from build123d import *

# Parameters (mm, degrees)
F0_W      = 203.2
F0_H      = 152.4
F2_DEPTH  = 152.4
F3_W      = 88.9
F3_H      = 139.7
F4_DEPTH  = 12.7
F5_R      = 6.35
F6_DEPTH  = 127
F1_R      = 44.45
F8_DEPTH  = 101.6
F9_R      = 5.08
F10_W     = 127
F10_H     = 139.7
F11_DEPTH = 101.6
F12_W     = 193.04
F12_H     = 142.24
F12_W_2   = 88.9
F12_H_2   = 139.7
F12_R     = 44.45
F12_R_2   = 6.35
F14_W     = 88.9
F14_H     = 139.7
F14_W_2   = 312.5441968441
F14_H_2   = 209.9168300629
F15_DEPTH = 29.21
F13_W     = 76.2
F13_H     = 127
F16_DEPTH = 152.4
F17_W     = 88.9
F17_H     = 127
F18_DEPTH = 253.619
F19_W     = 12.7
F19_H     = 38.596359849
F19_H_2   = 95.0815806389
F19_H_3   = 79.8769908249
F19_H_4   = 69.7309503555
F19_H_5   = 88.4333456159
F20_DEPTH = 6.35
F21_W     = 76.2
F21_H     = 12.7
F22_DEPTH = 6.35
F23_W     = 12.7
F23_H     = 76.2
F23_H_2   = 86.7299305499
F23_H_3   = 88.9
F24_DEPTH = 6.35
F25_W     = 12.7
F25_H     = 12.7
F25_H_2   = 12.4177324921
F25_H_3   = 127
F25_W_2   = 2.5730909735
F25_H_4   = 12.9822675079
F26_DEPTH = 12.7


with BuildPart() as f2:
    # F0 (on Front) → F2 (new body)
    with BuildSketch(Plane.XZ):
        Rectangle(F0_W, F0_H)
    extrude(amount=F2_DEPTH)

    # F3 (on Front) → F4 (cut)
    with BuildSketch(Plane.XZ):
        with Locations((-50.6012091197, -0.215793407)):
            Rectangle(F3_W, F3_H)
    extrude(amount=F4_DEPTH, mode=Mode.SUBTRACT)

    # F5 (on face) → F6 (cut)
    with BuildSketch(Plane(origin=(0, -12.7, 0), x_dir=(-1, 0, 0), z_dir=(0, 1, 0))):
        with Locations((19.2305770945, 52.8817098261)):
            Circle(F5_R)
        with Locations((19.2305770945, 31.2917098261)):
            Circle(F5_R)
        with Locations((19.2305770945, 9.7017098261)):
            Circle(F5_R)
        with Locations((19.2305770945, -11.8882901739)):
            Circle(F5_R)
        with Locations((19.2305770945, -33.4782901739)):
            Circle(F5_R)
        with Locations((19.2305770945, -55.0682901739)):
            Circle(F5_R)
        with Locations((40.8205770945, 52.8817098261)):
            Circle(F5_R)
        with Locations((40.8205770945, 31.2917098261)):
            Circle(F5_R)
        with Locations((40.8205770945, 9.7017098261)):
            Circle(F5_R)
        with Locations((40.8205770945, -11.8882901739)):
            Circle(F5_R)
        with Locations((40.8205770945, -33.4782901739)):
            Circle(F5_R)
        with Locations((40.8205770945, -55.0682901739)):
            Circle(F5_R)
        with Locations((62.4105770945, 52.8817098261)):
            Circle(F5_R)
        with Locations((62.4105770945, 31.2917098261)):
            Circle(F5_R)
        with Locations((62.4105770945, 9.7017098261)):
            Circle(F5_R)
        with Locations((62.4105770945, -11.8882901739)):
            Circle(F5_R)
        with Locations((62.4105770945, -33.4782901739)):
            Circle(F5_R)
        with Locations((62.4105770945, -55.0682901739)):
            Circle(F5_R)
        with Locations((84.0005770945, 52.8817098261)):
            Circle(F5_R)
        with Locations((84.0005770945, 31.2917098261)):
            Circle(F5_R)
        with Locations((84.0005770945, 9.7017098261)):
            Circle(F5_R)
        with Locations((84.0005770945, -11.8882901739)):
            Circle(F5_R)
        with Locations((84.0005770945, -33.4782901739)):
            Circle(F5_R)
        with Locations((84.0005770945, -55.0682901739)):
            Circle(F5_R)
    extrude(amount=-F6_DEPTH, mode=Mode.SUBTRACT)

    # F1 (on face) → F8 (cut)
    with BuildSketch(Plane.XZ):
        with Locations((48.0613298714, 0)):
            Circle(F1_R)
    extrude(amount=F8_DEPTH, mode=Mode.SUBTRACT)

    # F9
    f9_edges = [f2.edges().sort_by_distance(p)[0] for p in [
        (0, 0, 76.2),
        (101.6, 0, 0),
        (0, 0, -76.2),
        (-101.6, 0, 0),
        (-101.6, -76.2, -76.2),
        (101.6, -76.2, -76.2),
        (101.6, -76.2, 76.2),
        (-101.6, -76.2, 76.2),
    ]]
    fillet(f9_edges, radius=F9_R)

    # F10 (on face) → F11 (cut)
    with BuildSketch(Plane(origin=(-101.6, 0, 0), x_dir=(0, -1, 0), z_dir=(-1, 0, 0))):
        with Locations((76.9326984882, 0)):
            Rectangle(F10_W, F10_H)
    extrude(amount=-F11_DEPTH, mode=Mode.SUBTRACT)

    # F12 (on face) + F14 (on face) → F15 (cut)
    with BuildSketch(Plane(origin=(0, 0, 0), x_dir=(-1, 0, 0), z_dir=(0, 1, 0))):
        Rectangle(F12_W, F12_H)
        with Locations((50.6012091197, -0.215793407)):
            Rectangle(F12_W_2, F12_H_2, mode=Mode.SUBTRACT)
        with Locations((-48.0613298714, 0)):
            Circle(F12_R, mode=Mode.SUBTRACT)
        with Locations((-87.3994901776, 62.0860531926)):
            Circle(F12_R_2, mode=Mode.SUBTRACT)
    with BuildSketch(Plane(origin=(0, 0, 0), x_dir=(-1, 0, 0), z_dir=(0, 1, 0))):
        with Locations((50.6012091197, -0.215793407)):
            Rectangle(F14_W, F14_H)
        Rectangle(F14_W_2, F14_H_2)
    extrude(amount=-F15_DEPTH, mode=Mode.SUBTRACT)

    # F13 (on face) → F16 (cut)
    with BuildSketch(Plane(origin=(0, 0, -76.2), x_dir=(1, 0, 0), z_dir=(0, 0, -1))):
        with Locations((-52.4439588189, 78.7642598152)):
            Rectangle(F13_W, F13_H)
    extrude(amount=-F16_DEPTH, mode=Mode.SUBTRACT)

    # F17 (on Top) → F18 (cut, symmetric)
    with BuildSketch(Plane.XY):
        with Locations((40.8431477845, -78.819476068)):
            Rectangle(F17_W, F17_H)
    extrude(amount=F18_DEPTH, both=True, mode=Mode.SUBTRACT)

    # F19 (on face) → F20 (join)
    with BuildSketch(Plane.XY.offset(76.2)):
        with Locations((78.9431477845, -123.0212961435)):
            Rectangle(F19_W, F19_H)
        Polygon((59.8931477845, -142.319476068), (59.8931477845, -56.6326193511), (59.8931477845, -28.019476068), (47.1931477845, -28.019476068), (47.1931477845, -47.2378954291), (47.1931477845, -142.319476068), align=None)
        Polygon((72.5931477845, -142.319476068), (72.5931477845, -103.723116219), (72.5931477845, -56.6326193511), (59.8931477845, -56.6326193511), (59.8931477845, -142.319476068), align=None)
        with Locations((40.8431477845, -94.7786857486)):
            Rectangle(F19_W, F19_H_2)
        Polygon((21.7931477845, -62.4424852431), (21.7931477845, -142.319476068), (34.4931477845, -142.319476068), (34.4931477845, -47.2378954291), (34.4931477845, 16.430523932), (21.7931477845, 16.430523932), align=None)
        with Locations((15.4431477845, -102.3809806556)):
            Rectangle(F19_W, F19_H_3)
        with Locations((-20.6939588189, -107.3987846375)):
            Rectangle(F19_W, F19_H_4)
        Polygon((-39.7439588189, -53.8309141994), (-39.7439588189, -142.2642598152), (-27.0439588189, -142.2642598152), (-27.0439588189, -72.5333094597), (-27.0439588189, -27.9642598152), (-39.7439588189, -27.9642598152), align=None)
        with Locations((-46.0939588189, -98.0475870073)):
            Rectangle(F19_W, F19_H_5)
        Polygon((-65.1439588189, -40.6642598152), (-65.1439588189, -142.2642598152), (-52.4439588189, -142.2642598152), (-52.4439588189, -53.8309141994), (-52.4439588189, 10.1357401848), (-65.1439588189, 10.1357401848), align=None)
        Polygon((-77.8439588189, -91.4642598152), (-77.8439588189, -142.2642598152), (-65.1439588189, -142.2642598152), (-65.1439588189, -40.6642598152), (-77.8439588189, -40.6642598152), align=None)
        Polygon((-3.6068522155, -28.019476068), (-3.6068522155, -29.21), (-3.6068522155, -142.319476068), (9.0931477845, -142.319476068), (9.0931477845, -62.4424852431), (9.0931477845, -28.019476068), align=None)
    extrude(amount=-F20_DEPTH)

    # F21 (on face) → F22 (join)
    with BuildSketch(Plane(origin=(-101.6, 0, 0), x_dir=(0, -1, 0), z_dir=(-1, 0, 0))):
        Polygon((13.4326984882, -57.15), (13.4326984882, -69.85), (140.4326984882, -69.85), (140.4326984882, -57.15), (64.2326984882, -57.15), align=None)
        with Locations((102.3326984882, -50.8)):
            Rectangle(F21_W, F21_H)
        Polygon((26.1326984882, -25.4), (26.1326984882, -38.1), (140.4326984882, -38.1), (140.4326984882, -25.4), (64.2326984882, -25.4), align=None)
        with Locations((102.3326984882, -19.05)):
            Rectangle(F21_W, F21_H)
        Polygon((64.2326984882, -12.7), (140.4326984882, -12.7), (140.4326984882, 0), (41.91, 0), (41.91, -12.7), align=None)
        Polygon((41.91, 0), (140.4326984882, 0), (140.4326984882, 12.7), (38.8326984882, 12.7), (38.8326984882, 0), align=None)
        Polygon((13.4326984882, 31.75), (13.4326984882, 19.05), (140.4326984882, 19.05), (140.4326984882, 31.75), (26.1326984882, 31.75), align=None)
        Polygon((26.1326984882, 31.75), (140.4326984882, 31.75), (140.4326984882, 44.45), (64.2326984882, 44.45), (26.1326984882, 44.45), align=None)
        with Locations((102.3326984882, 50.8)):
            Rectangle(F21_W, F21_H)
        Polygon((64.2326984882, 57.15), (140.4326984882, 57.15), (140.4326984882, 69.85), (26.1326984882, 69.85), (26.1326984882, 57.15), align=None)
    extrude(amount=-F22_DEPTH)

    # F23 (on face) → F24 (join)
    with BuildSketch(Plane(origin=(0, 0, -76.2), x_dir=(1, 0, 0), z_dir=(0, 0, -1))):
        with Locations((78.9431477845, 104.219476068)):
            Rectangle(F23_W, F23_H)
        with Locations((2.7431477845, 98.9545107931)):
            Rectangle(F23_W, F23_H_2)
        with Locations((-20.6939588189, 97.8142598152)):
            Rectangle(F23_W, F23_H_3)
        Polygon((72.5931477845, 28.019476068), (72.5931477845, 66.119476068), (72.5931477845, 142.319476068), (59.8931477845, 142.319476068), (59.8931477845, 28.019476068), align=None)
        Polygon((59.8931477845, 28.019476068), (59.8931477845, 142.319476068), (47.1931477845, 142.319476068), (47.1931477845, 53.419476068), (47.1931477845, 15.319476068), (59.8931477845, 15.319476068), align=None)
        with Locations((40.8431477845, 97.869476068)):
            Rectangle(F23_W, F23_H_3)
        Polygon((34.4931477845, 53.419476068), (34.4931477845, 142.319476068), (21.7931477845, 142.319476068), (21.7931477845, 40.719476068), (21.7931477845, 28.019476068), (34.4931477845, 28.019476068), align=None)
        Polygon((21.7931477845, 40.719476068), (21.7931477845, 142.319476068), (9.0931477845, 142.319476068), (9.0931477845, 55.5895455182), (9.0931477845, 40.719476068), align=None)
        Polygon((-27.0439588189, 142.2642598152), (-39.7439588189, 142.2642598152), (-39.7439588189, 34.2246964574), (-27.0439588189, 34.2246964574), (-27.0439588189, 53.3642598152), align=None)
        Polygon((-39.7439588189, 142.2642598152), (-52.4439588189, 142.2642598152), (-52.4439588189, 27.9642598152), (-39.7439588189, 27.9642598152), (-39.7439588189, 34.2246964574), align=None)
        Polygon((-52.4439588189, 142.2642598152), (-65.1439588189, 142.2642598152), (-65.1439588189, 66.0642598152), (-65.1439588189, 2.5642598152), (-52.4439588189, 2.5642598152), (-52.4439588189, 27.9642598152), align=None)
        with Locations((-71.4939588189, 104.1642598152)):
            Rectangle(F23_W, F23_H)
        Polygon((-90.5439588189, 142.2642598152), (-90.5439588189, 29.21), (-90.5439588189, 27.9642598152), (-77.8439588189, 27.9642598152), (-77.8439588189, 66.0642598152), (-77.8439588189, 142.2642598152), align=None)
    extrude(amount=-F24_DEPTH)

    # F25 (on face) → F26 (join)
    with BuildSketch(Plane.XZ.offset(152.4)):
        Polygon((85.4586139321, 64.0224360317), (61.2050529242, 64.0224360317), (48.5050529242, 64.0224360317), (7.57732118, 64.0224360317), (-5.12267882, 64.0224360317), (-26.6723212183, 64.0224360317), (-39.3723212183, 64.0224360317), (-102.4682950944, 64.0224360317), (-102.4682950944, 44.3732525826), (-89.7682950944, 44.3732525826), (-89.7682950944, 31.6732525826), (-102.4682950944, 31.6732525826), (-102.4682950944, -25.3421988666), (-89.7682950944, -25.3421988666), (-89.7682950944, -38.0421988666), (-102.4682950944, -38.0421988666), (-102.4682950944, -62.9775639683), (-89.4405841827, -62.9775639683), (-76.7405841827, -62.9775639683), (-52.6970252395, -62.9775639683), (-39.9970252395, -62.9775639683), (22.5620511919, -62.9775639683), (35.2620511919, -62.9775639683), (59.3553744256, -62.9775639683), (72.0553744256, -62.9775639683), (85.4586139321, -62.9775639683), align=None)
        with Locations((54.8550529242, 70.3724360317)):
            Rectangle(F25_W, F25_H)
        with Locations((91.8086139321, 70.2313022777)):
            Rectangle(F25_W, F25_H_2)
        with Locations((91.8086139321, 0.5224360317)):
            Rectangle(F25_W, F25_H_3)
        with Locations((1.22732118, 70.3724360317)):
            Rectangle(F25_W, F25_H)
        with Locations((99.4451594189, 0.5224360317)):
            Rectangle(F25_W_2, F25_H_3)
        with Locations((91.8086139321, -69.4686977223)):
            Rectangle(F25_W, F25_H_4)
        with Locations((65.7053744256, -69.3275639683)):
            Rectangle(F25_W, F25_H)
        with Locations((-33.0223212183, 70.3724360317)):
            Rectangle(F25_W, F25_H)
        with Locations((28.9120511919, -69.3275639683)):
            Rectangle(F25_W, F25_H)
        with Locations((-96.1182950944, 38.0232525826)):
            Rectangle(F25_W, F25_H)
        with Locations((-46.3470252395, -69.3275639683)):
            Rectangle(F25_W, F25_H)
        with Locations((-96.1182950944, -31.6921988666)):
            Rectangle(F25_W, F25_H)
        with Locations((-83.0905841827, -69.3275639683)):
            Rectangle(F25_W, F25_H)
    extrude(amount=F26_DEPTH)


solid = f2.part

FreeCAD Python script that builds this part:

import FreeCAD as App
import Part
import Sketcher
from FreeCAD import Vector
Q = App.Units.Quantity


def edges_at(feature, points):
    """Names of the edges that pass closest to the given points."""
    edges = feature.Shape.Edges
    near = lambda p: min(range(len(edges)), key=lambda i: edges[i].distToShape(Part.Vertex(*p))[0])
    return sorted({f"Edge{near(p) + 1}" for p in points})


def add_polygon(sketch, points):
    """Adds a closed chain of lines whose ends are joined by coincident constraints."""
    first, n = sketch.GeometryCount, len(points)
    for a, b in zip(points, points[1:] + points[:1]):
        sketch.addGeometry(Part.LineSegment(App.Vector(*a, 0), App.Vector(*b, 0)), False)
    for i in range(n):
        sketch.addConstraint(Sketcher.Constraint("Coincident", first + i, 2, first + (i + 1) % n, 1))

doc = App.newDocument("Part")
body = doc.addObject("PartDesign::Body", "Body")

# Sketch on XZ plane
sketch1 = doc.addObject("Sketcher::SketchObject", "Sketch")
body.addObject(sketch1)
sketch1.AttachmentSupport = (doc.XZ_Plane, [""])
sketch1.MapMode = "FlatFace"
add_polygon(sketch1, [(-102, 76), (-102, -76), (102, -76), (102, 76)])  # lines 0-3
sketch1.addConstraint(Sketcher.Constraint("Vertical", 0))
sketch1.addConstraint(Sketcher.Constraint("Horizontal", 1))
sketch1.addConstraint(Sketcher.Constraint("Vertical", 2))
sketch1.addConstraint(Sketcher.Constraint("Horizontal", 3))
sketch1.addConstraint(Sketcher.Constraint("Symmetric", 0, 2, 2, 2, -1, 1))
sketch1.addConstraint(Sketcher.Constraint("DistanceX", 1, 1, 1, 2, Q("8 in")))
sketch1.addConstraint(Sketcher.Constraint("DistanceY", 0, 2, 0, 1, Q("6 in")))
pad1 = doc.addObject("PartDesign::Pad", "Pad")
body.addObject(pad1)
pad1.Profile = sketch1
pad1.Length = Q("6 in")

# Sketch on XZ plane
sketch2 = doc.addObject("Sketcher::SketchObject", "Sketch001")
body.addObject(sketch2)
sketch2.AttachmentSupport = (doc.XZ_Plane, [""])
sketch2.MapMode = "FlatFace"
add_polygon(sketch2, [(-95, 70), (-95, -70), (-6, -70), (-6, 70)])  # lines 0-3
sketch2.addConstraint(Sketcher.Constraint("Vertical", 0))
sketch2.addConstraint(Sketcher.Constraint("Horizontal", 1))
sketch2.addConstraint(Sketcher.Constraint("Vertical", 2))
sketch2.addConstraint(Sketcher.Constraint("Horizontal", 3))
sketch2.addConstraint(Sketcher.Constraint("DistanceX", 1, 1, 1, 2, Q("3.5 in")))
sketch2.addConstraint(Sketcher.Constraint("DistanceY", 0, 2, 0, 1, Q("5.5 in")))
sketch2.addConstraint(Sketcher.Constraint("DistanceX", 0, 2, -1, 1, Q("95.051209 mm")))
sketch2.addConstraint(Sketcher.Constraint("DistanceY", 0, 2, -1, 1, Q("70.065793 mm")))
pocket1 = doc.addObject("PartDesign::Pocket", "Pocket")
body.addObject(pocket1)
pocket1.Profile = sketch2
pocket1.Length = Q("0.5 in")
pocket1.Reversed = True

# Sketch on XZ plane
sketch3 = doc.addObject("Sketcher::SketchObject", "Sketch002")
body.addObject(sketch3)
sketch3.AttachmentSupport = (doc.XZ_Plane, [""])
sketch3.MapMode = "FlatFace"
sketch3.AttachmentOffset = App.Placement(Vector(0, 0, 0.5 * 25.4), App.Rotation())
sketch3.addGeometry(Part.Circle(Vector(-19, 53, 0), Vector(0, 0, 1), 6), False)
sketch3.addGeometry(Part.Circle(Vector(-19, 31, 0), Vector(0, 0, 1), 6), False)
sketch3.addGeometry(Part.Circle(Vector(-19, 10, 0), Vector(0, 0, 1), 6), False)
sketch3.addGeometry(Part.Circle(Vector(-19, -12, 0), Vector(0, 0, 1), 6), False)
sketch3.addGeometry(Part.Circle(Vector(-19, -33, 0), Vector(0, 0, 1), 6), False)
sketch3.addGeometry(Part.Circle(Vector(-19, -55, 0), Vector(0, 0, 1), 6), False)
sketch3.addGeometry(Part.Circle(Vector(-41, 53, 0), Vector(0, 0, 1), 6), False)
sketch3.addGeometry(Part.Circle(Vector(-41, 31, 0), Vector(0, 0, 1), 6), False)
sketch3.addGeometry(Part.Circle(Vector(-41, 10, 0), Vector(0, 0, 1), 6), False)
sketch3.addGeometry(Part.Circle(Vector(-41, -12, 0), Vector(0, 0, 1), 6), False)
sketch3.addGeometry(Part.Circle(Vector(-41, -33, 0), Vector(0, 0, 1), 6), False)
sketch3.addGeometry(Part.Circle(Vector(-41, -55, 0), Vector(0, 0, 1), 6), False)
sketch3.addGeometry(Part.Circle(Vector(-62, 53, 0), Vector(0, 0, 1), 6), False)
sketch3.addGeometry(Part.Circle(Vector(-62, 31, 0), Vector(0, 0, 1), 6), False)
sketch3.addGeometry(Part.Circle(Vector(-62, 10, 0), Vector(0, 0, 1), 6), False)
sketch3.addGeometry(Part.Circle(Vector(-62, -12, 0), Vector(0, 0, 1), 6), False)
sketch3.addGeometry(Part.Circle(Vector(-62, -33, 0), Vector(0, 0, 1), 6), False)
sketch3.addGeometry(Part.Circle(Vector(-62, -55, 0), Vector(0, 0, 1), 6), False)
sketch3.addGeometry(Part.Circle(Vector(-84, 53, 0), Vector(0, 0, 1), 6), False)
sketch3.addGeometry(Part.Circle(Vector(-84, 31, 0), Vector(0, 0, 1), 6), False)
sketch3.addGeometry(Part.Circle(Vector(-84, 10, 0), Vector(0, 0, 1), 6), False)
sketch3.addGeometry(Part.Circle(Vector(-84, -12, 0), Vector(0, 0, 1), 6), False)
sketch3.addGeometry(Part.Circle(Vector(-84, -33, 0), Vector(0, 0, 1), 6), False)
sketch3.addGeometry(Part.Circle(Vector(-84, -55, 0), Vector(0, 0, 1), 6), False)
sketch3.addConstraint(Sketcher.Constraint("Equal", 0, 1))
sketch3.addConstraint(Sketcher.Constraint("Equal", 1, 2))
sketch3.addConstraint(Sketcher.Constraint("Equal", 2, 3))
sketch3.addConstraint(Sketcher.Constraint("Equal", 3, 4))
sketch3.addConstraint(Sketcher.Constraint("Equal", 4, 5))
sketch3.addConstraint(Sketcher.Constraint("Equal", 5, 6))
sketch3.addConstraint(Sketcher.Constraint("Equal", 6, 7))
sketch3.addConstraint(Sketcher.Constraint("Equal", 7, 8))
sketch3.addConstraint(Sketcher.Constraint("Equal", 8, 9))
sketch3.addConstraint(Sketcher.Constraint("Equal", 9, 10))
sketch3.addConstraint(Sketcher.Constraint("Equal", 10, 11))
sketch3.addConstraint(Sketcher.Constraint("Equal", 11, 12))
sketch3.addConstraint(Sketcher.Constraint("Equal", 12, 13))
sketch3.addConstraint(Sketcher.Constraint("Equal", 13, 14))
sketch3.addConstraint(Sketcher.Constraint("Equal", 14, 15))
sketch3.addConstraint(Sketcher.Constraint("Equal", 15, 16))
sketch3.addConstraint(Sketcher.Constraint("Equal", 16, 17))
sketch3.addConstraint(Sketcher.Constraint("Equal", 17, 18))
sketch3.addConstraint(Sketcher.Constraint("Equal", 18, 19))
sketch3.addConstraint(Sketcher.Constraint("Equal", 19, 20))
sketch3.addConstraint(Sketcher.Constraint("Equal", 20, 21))
sketch3.addConstraint(Sketcher.Constraint("Equal", 21, 22))
sketch3.addConstraint(Sketcher.Constraint("Equal", 22, 23))
sketch3.addConstraint(Sketcher.Constraint("Horizontal", 0, 3, 6, 3))
sketch3.addConstraint(Sketcher.Constraint("Horizontal", 1, 3, 7, 3))
sketch3.addConstraint(Sketcher.Constraint("Horizontal", 2, 3, 8, 3))
sketch3.addConstraint(Sketcher.Constraint("Horizontal", 3, 3, 9, 3))
sketch3.addConstraint(Sketcher.Constraint("Horizontal", 4, 3, 10, 3))
sketch3.addConstraint(Sketcher.Constraint("Horizontal", 5, 3, 11, 3))
sketch3.addConstraint(Sketcher.Constraint("Horizontal", 6, 3, 12, 3))
sketch3.addConstraint(Sketcher.Constraint("Horizontal", 7, 3, 13, 3))
sketch3.addConstraint(Sketcher.Constraint("Horizontal", 8, 3, 14, 3))
sketch3.addConstraint(Sketcher.Constraint("Horizontal", 9, 3, 15, 3))
sketch3.addConstraint(Sketcher.Constraint("Horizontal", 10, 3, 16, 3))
sketch3.addConstraint(Sketcher.Constraint("Horizontal", 11, 3, 17, 3))
sketch3.addConstraint(Sketcher.Constraint("Horizontal", 12, 3, 18, 3))
sketch3.addConstraint(Sketcher.Constraint("Horizontal", 13, 3, 19, 3))
sketch3.addConstraint(Sketcher.Constraint("Horizontal", 14, 3, 20, 3))
sketch3.addConstraint(Sketcher.Constraint("Horizontal", 15, 3, 21, 3))
sketch3.addConstraint(Sketcher.Constraint("Horizontal", 16, 3, 22, 3))
sketch3.addConstraint(Sketcher.Constraint("Horizontal", 17, 3, 23, 3))
sketch3.addConstraint(Sketcher.Constraint("Vertical", 0, 3, 1, 3))
sketch3.addConstraint(Sketcher.Constraint("Vertical", 1, 3, 2, 3))
sketch3.addConstraint(Sketcher.Constraint("Vertical", 2, 3, 3, 3))
sketch3.addConstraint(Sketcher.Constraint("Vertical", 3, 3, 4, 3))
sketch3.addConstraint(Sketcher.Constraint("Vertical", 4, 3, 5, 3))
sketch3.addConstraint(Sketcher.Constraint("Vertical", 6, 3, 7, 3))
sketch3.addConstraint(Sketcher.Constraint("Vertical", 7, 3, 8, 3))
sketch3.addConstraint(Sketcher.Constraint("Vertical", 8, 3, 9, 3))
sketch3.addConstraint(Sketcher.Constraint("Vertical", 9, 3, 10, 3))
sketch3.addConstraint(Sketcher.Constraint("Vertical", 10, 3, 11, 3))
sketch3.addConstraint(Sketcher.Constraint("Vertical", 12, 3, 13, 3))
sketch3.addConstraint(Sketcher.Constraint("Vertical", 13, 3, 14, 3))
sketch3.addConstraint(Sketcher.Constraint("Vertical", 14, 3, 15, 3))
sketch3.addConstraint(Sketcher.Constraint("Vertical", 15, 3, 16, 3))
sketch3.addConstraint(Sketcher.Constraint("Vertical", 16, 3, 17, 3))
sketch3.addConstraint(Sketcher.Constraint("Vertical", 18, 3, 19, 3))
sketch3.addConstraint(Sketcher.Constraint("Vertical", 19, 3, 20, 3))
sketch3.addConstraint(Sketcher.Constraint("Vertical", 20, 3, 21, 3))
sketch3.addConstraint(Sketcher.Constraint("Vertical", 21, 3, 22, 3))
sketch3.addConstraint(Sketcher.Constraint("Vertical", 22, 3, 23, 3))
sketch3.addConstraint(Sketcher.Constraint("Diameter", 0, Q("0.5 in")))
sketch3.addConstraint(Sketcher.Constraint("DistanceY", 2, 3, 0, 3, Q("1.7 in")))
sketch3.addConstraint(Sketcher.Constraint("DistanceY", 3, 3, 1, 3, Q("1.7 in")))
sketch3.addConstraint(Sketcher.Constraint("DistanceY", 4, 3, 2, 3, Q("1.7 in")))
sketch3.addConstraint(Sketcher.Constraint("DistanceY", 5, 3, 3, 3, Q("1.7 in")))
sketch3.addConstraint(Sketcher.Constraint("DistanceX", 12, 3, 0, 3, Q("1.7 in")))
sketch3.addConstraint(Sketcher.Constraint("DistanceX", 18, 3, 6, 3, Q("1.7 in")))
sketch3.addConstraint(Sketcher.Constraint("DistanceY", 1, 3, 0, 3, Q("0.85 in")))
sketch3.addConstraint(Sketcher.Constraint("DistanceX", 6, 3, 0, 3, Q("0.85 in")))
sketch3.addConstraint(Sketcher.Constraint("DistanceY", -1, 1, 0, 3, Q("52.88171 mm")))
sketch3.addConstraint(Sketcher.Constraint("DistanceX", 0, 3, -1, 1, Q("19.230577 mm")))
pocket2 = doc.addObject("PartDesign::Pocket", "Pocket001")
body.addObject(pocket2)
pocket2.Profile = sketch3
pocket2.Length = Q("5 in")
pocket2.Reversed = True

# Sketch on XZ plane
sketch4 = doc.addObject("Sketcher::SketchObject", "Sketch003")
body.addObject(sketch4)
sketch4.AttachmentSupport = (doc.XZ_Plane, [""])
sketch4.MapMode = "FlatFace"
sketch4.addGeometry(Part.Circle(Vector(48, 0, 0), Vector(0, 0, 1), 44), False)
sketch4.addConstraint(Sketcher.Constraint("PointOnObject", 0, 3, -1))
sketch4.addConstraint(Sketcher.Constraint("Diameter", 0, Q("3.5 in")))
sketch4.addConstraint(Sketcher.Constraint("DistanceX", -1, 1, 0, 3, Q("48.06133 mm")))
pocket3 = doc.addObject("PartDesign::Pocket", "Pocket002")
body.addObject(pocket3)
pocket3.Profile = sketch4
pocket3.Length = Q("4 in")
pocket3.Reversed = True
doc.recompute()

fillet = doc.addObject("PartDesign::Fillet", "Fillet")
body.addObject(fillet)
fillet.Base = (pocket3, edges_at(pocket3, [
    (0, 0, 76.2),
    (101.6, 0, 0),
    (0, 0, -76.2),
    (-101.6, 0, 0),
    (-101.6, -76.2, -76.2),
    (101.6, -76.2, -76.2),
    (101.6, -76.2, 76.2),
    (-101.6, -76.2, 76.2),
]))
fillet.Radius = Q("0.2 in")

# Sketch on YZ plane
sketch5 = doc.addObject("Sketcher::SketchObject", "Sketch004")
body.addObject(sketch5)
sketch5.AttachmentSupport = (doc.YZ_Plane, [""])
sketch5.MapMode = "FlatFace"
sketch5.AttachmentOffset = App.Placement(Vector(0, 0, -4 * 25.4), App.Rotation())
add_polygon(sketch5, [(-13, 70), (-13, -70), (-140, -70), (-140, 70)])  # lines 0-3
sketch5.addConstraint(Sketcher.Constraint("Vertical", 0))
sketch5.addConstraint(Sketcher.Constraint("Horizontal", 1))
sketch5.addConstraint(Sketcher.Constraint("Vertical", 2))
sketch5.addConstraint(Sketcher.Constraint("Horizontal", 3))
sketch5.addConstraint(Sketcher.Constraint("DistanceX", 1, 2, 1, 1, Q("5 in")))
sketch5.addConstraint(Sketcher.Constraint("DistanceY", 0, 2, 0, 1, Q("5.5 in")))
sketch5.addConstraint(Sketcher.Constraint("DistanceY", 0, 2, -1, 1, Q("2.75 in")))
sketch5.addConstraint(Sketcher.Constraint("DistanceX", 0, 2, -1, 1, Q("13.432698 mm")))
pocket4 = doc.addObject("PartDesign::Pocket", "Pocket003")
body.addObject(pocket4)
pocket4.Profile = sketch5
pocket4.Length = Q("4 in")
pocket4.Reversed = True

# Sketch on XZ plane
sketch6 = doc.addObject("Sketcher::SketchObject", "Sketch005")
body.addObject(sketch6)
sketch6.AttachmentSupport = (doc.XZ_Plane, [""])
sketch6.MapMode = "FlatFace"
add_polygon(sketch6, [(156, 105), (156, -105), (-156, -105), (-156, 105)])  # lines 0-3
sketch6.addConstraint(Sketcher.Constraint("Vertical", 0))
sketch6.addConstraint(Sketcher.Constraint("Horizontal", 1))
sketch6.addConstraint(Sketcher.Constraint("Vertical", 2))
sketch6.addConstraint(Sketcher.Constraint("Horizontal", 3))
sketch6.addConstraint(Sketcher.Constraint("Symmetric", 0, 2, 2, 2, -1, 1))
sketch6.addConstraint(Sketcher.Constraint("DistanceY", 0, 2, 0, 1, Q("209.91683 mm")))
sketch6.addConstraint(Sketcher.Constraint("DistanceX", -1, 1, 0, 2, Q("156.272098 mm")))
pocket5 = doc.addObject("PartDesign::Pocket", "Pocket004")
body.addObject(pocket5)
pocket5.Profile = sketch6
pocket5.Length = Q("1.15 in")
pocket5.Reversed = True

# Sketch on XY plane
sketch7 = doc.addObject("Sketcher::SketchObject", "Sketch006")
body.addObject(sketch7)
sketch7.AttachmentSupport = (doc.XY_Plane, [""])
sketch7.MapMode = "FlatFace"
sketch7.AttachmentOffset = App.Placement(Vector(0, 0, -3 * 25.4), App.Rotation())
add_polygon(sketch7, [(-91, -142), (-91, -15), (-14, -15), (-14, -142)])  # lines 0-3
sketch7.addConstraint(Sketcher.Constraint("Vertical", 0))
sketch7.addConstraint(Sketcher.Constraint("Horizontal", 1))
sketch7.addConstraint(Sketcher.Constraint("Vertical", 2))
sketch7.addConstraint(Sketcher.Constraint("Horizontal", 3))
sketch7.addConstraint(Sketcher.Constraint("DistanceX", 1, 1, 1, 2, Q("3 in")))
sketch7.addConstraint(Sketcher.Constraint("DistanceY", 0, 1, 0, 2, Q("5 in")))
sketch7.addConstraint(Sketcher.Constraint("DistanceX", 0, 2, -1, 1, Q("90.543959 mm")))
sketch7.addConstraint(Sketcher.Constraint("DistanceY", 0, 2, -1, 1, Q("15.26426 mm")))
pocket6 = doc.addObject("PartDesign::Pocket", "Pocket005")
body.addObject(pocket6)
pocket6.Profile = sketch7
pocket6.Length = Q("6 in")
pocket6.Reversed = True

# Sketch on XY plane
sketch8 = doc.addObject("Sketcher::SketchObject", "Sketch007")
body.addObject(sketch8)
sketch8.AttachmentSupport = (doc.XY_Plane, [""])
sketch8.MapMode = "FlatFace"
add_polygon(sketch8, [(-4, -15), (-4, -142), (85, -142), (85, -15)])  # lines 0-3
sketch8.addConstraint(Sketcher.Constraint("Vertical", 0))
sketch8.addConstraint(Sketcher.Constraint("Horizontal", 1))
sketch8.addConstraint(Sketcher.Constraint("Vertical", 2))
sketch8.addConstraint(Sketcher.Constraint("Horizontal", 3))
sketch8.addConstraint(Sketcher.Constraint("DistanceY", 0, 2, 0, 1, Q("5 in")))
sketch8.addConstraint(Sketcher.Constraint("DistanceX", 1, 1, 1, 2, Q("3.5 in")))
sketch8.addConstraint(Sketcher.Constraint("DistanceX", 0, 2, -1, 1, Q("3.606852 mm")))
sketch8.addConstraint(Sketcher.Constraint("DistanceY", 0, 2, -1, 1, Q("142.319476 mm")))
pocket7 = doc.addObject("PartDesign::Pocket", "Pocket006")
body.addObject(pocket7)
pocket7.Profile = sketch8
pocket7.Length = Q("19.97 in")
pocket7.Midplane = True

# Sketch on XY plane
sketch9 = doc.addObject("Sketcher::SketchObject", "Sketch008")
body.addObject(sketch9)
sketch9.AttachmentSupport = (doc.XY_Plane, [""])
sketch9.MapMode = "FlatFace"
sketch9.AttachmentOffset = App.Placement(Vector(0, 0, 3 * 25.4), App.Rotation())
add_polygon(sketch9, [(85, -142), (85, -104), (73, -104), (73, -57), (60, -57), (60, -28), (47, -28), (47, -47), (34, -47), (34, 16), (22, 16), (22, -62), (9, -62), (9, -28), (-4, -28), (-4, -142)])  # lines 0-15
add_polygon(sketch9, [(-27, -142), (-14, -142), (-14, -73), (-27, -73), (-27, -28), (-40, -28), (-40, -54), (-52, -54), (-52, 10), (-65, 10), (-65, -41), (-78, -41), (-78, -142), (-52, -142), (-40, -142)])  # lines 16-30
sketch9.addConstraint(Sketcher.Constraint("Vertical", 0))
sketch9.addConstraint(Sketcher.Constraint("Horizontal", 1))
sketch9.addConstraint(Sketcher.Constraint("Vertical", 2))
sketch9.addConstraint(Sketcher.Constraint("Horizontal", 3))
sketch9.addConstraint(Sketcher.Constraint("Vertical", 4))
sketch9.addConstraint(Sketcher.Constraint("Horizontal", 5))
sketch9.addConstraint(Sketcher.Constraint("Vertical", 6))
sketch9.addConstraint(Sketcher.Constraint("Horizontal", 7))
sketch9.addConstraint(Sketcher.Constraint("Vertical", 8))
sketch9.addConstraint(Sketcher.Constraint("Horizontal", 9))
sketch9.addConstraint(Sketcher.Constraint("Vertical", 10))
sketch9.addConstraint(Sketcher.Constraint("Horizontal", 11))
sketch9.addConstraint(Sketcher.Constraint("Vertical", 12))
sketch9.addConstraint(Sketcher.Constraint("Horizontal", 13))
sketch9.addConstraint(Sketcher.Constraint("Vertical", 14))
sketch9.addConstraint(Sketcher.Constraint("Horizontal", 15))
sketch9.addConstraint(Sketcher.Constraint("Horizontal", 16))
sketch9.addConstraint(Sketcher.Constraint("Vertical", 17))
sketch9.addConstraint(Sketcher.Constraint("Horizontal", 18))
sketch9.addConstraint(Sketcher.Constraint("Vertical", 19))
sketch9.addConstraint(Sketcher.Constraint("Horizontal", 20))
sketch9.addConstraint(Sketcher.Constraint("Vertical", 21))
sketch9.addConstraint(Sketcher.Constraint("Horizontal", 22))
sketch9.addConstraint(Sketcher.Constraint("Vertical", 23))
sketch9.addConstraint(Sketcher.Constraint("Horizontal", 24))
sketch9.addConstraint(Sketcher.Constraint("Vertical", 25))
sketch9.addConstraint(Sketcher.Constraint("Horizontal", 26))
sketch9.addConstraint(Sketcher.Constraint("Vertical", 27))
sketch9.addConstraint(Sketcher.Constraint("Horizontal", 28))
sketch9.addConstraint(Sketcher.Constraint("Horizontal", 29))
sketch9.addConstraint(Sketcher.Constraint("Horizontal", 30))
sketch9.addConstraint(Sketcher.Constraint("Horizontal", 5, 2, 12, 2))
sketch9.addConstraint(Sketcher.Constraint("Vertical", 23, 2, 28, 2))
sketch9.addConstraint(Sketcher.Constraint("Vertical", 21, 2, 29, 2))
sketch9.addConstraint(Sketcher.Constraint("Vertical", 19, 2, 30, 2))
sketch9.addConstraint(Sketcher.Constraint("Equal", 1, 3))
sketch9.addConstraint(Sketcher.Constraint("Equal", 3, 5))
sketch9.addConstraint(Sketcher.Constraint("Equal", 5, 7))
sketch9.addConstraint(Sketcher.Constraint("Equal", 7, 9))
sketch9.addConstraint(Sketcher.Constraint("Equal", 9, 11))
sketch9.addConstraint(Sketcher.Constraint("Equal", 11, 13))
sketch9.addConstraint(Sketcher.Constraint("Equal", 13, 16))
sketch9.addConstraint(Sketcher.Constraint("Equal", 18, 20))
sketch9.addConstraint(Sketcher.Constraint("Equal", 20, 22))
sketch9.addConstraint(Sketcher.Constraint("Equal", 22, 24))
sketch9.addConstraint(Sketcher.Constraint("Equal", 24, 26))
sketch9.addConstraint(Sketcher.Constraint("DistanceX", 28, 1, 28, 2, Q("1 in")))
sketch9.addConstraint(Sketcher.Constraint("DistanceY", 25, 2, 25, 1, Q("2 in")))
sketch9.addConstraint(Sketcher.Constraint("DistanceY", 27, 2, 27, 1, Q("4 in")))
sketch9.addConstraint(Sketcher.Constraint("DistanceY", 14, 2, 14, 1, Q("4.5 in")))
sketch9.addConstraint(Sketcher.Constraint("DistanceY", 20, 2, 23, 2, Q("1.5 in")))
sketch9.addConstraint(Sketcher.Constraint("DistanceY", 5, 2, 8, 2, Q("1.75 in")))
sketch9.addConstraint(Sketcher.Constraint("DistanceY", 0, 1, 0, 2, Q("38.59636 mm")))
sketch9.addConstraint(Sketcher.Constraint("DistanceY", 6, 2, 6, 1, Q("19.218419 mm")))
sketch9.addConstraint(Sketcher.Constraint("DistanceY", 10, 2, 10, 1, Q("78.873009 mm")))
sketch9.addConstraint(Sketcher.Constraint("DistanceY", 17, 1, 17, 2, Q("69.73095 mm")))
sketch9.addConstraint(Sketcher.Constraint("DistanceY", 2, 1, 2, 2, Q("47.090497 mm")))
sketch9.addConstraint(Sketcher.Constraint("DistanceY", 21, 2, 21, 1, Q("25.866654 mm")))
sketch9.addConstraint(Sketcher.Constraint("DistanceY", 2, 2, -1, 1, Q("56.632619 mm")))
sketch9.addConstraint(Sketcher.Constraint("DistanceX", 16, 2, -1, 1, Q("14.343959 mm")))
sketch9.addConstraint(Sketcher.Constraint("DistanceY", 16, 2, -1, 1, Q("142.26426 mm")))
sketch9.addConstraint(Sketcher.Constraint("DistanceX", -1, 1, 0, 2, Q("85.293148 mm")))
pad2 = doc.addObject("PartDesign::Pad", "Pad001")
body.addObject(pad2)
pad2.Profile = sketch9
pad2.Length = Q("0.25 in")
pad2.Reversed = True

# Sketch on YZ plane
sketch10 = doc.addObject("Sketcher::SketchObject", "Sketch009")
body.addObject(sketch10)
sketch10.AttachmentSupport = (doc.YZ_Plane, [""])
sketch10.MapMode = "FlatFace"
sketch10.AttachmentOffset = App.Placement(Vector(0, 0, -4 * 25.4), App.Rotation())
add_polygon(sketch10, [(-13.4, -57.1), (-13.4, -69.8), (-140.4, -69.8), (-140.4, -44.5), (-64.2, -44.5), (-64.2, -57.1)])  # lines 0-5
add_polygon(sketch10, [(-26.1, -25.4), (-26.1, -38.1), (-140.4, -38.1), (-140.4, 12.7), (-38.8, 12.7), (-38.8, 0), (-41.9, 0), (-41.9, -12.7), (-64.2, -12.7), (-64.2, -25.4)])  # lines 6-15
add_polygon(sketch10, [(-13.4, 31.8), (-13.4, 19.1), (-140.4, 19.1), (-140.4, 69.8), (-26.1, 69.8), (-26.1, 57.1), (-64.2, 57.1), (-64.2, 44.5), (-26.1, 44.5), (-26.1, 31.8)])  # lines 16-25
sketch10.addConstraint(Sketcher.Constraint("Vertical", 0))
sketch10.addConstraint(Sketcher.Constraint("Horizontal", 1))
sketch10.addConstraint(Sketcher.Constraint("Vertical", 2))
sketch10.addConstraint(Sketcher.Constraint("Horizontal", 3))
sketch10.addConstraint(Sketcher.Constraint("Vertical", 4))
sketch10.addConstraint(Sketcher.Constraint("Horizontal", 5))
sketch10.addConstraint(Sketcher.Constraint("Vertical", 6))
sketch10.addConstraint(Sketcher.Constraint("Horizontal", 7))
sketch10.addConstraint(Sketcher.Constraint("Vertical", 8))
sketch10.addConstraint(Sketcher.Constraint("Horizontal", 9))
sketch10.addConstraint(Sketcher.Constraint("Vertical", 10))
sketch10.addConstraint(Sketcher.Constraint("Horizontal", 11))
sketch10.addConstraint(Sketcher.Constraint("Vertical", 12))
sketch10.addConstraint(Sketcher.Constraint("Horizontal", 13))
sketch10.addConstraint(Sketcher.Constraint("Vertical", 14))
sketch10.addConstraint(Sketcher.Constraint("Horizontal", 15))
sketch10.addConstraint(Sketcher.Constraint("Vertical", 16))
sketch10.addConstraint(Sketcher.Constraint("Horizontal", 17))
sketch10.addConstraint(Sketcher.Constraint("Vertical", 18))
sketch10.addConstraint(Sketcher.Constraint("Horizontal", 19))
sketch10.addConstraint(Sketcher.Constraint("Vertical", 20))
sketch10.addConstraint(Sketcher.Constraint("Horizontal", 21))
sketch10.addConstraint(Sketcher.Constraint("Vertical", 22))
sketch10.addConstraint(Sketcher.Constraint("Horizontal", 23))
sketch10.addConstraint(Sketcher.Constraint("Vertical", 24))
sketch10.addConstraint(Sketcher.Constraint("Horizontal", 25))
sketch10.addConstraint(Sketcher.Constraint("Symmetric", 1, 2, 18, 2, -1))
sketch10.addConstraint(Sketcher.Constraint("Symmetric", 4, 2, 21, 2, -1))
sketch10.addConstraint(Sketcher.Constraint("PointOnObject", 10, 2, -1))
sketch10.addConstraint(Sketcher.Constraint("Vertical", 2, 2, 7, 2))
sketch10.addConstraint(Sketcher.Constraint("Vertical", 4, 2, 13, 2))
sketch10.addConstraint(Sketcher.Constraint("Vertical", 5, 2, 16, 2))
sketch10.addConstraint(Sketcher.Constraint("Vertical", 15, 2, 19, 2))
sketch10.addConstraint(Sketcher.Constraint("Vertical", 20, 2, 23, 2))
sketch10.addConstraint(Sketcher.Constraint("Equal", 25, 0))
sketch10.addConstraint(Sketcher.Constraint("Equal", 0, 4))
sketch10.addConstraint(Sketcher.Constraint("Equal", 4, 6))
sketch10.addConstraint(Sketcher.Constraint("Equal", 5, 8))
sketch10.addConstraint(Sketcher.Constraint("Equal", 6, 10))
sketch10.addConstraint(Sketcher.Constraint("Equal", 10, 12))
sketch10.addConstraint(Sketcher.Constraint("Equal", 12, 14))
sketch10.addConstraint(Sketcher.Constraint("Equal", 14, 16))
sketch10.addConstraint(Sketcher.Constraint("Equal", 8, 18))
sketch10.addConstraint(Sketcher.Constraint("Equal", 20, 22))
sketch10.addConstraint(Sketcher.Constraint("DistanceX", 1, 2, 1, 1, Q("5 in")))
sketch10.addConstraint(Sketcher.Constraint("DistanceX", 3, 1, 3, 2, Q("3 in")))
sketch10.addConstraint(Sketcher.Constraint("DistanceX", 9, 1, 9, 2, Q("4 in")))
sketch10.addConstraint(Sketcher.Constraint("DistanceY", 2, 2, 17, 2, Q("2.5 in")))
sketch10.addConstraint(Sketcher.Constraint("DistanceX", 11, 2, -1, 1, Q("1.65 in")))
sketch10.addConstraint(Sketcher.Constraint("DistanceX", 11, 2, 11, 1, Q("3.077302 mm")))
pad3 = doc.addObject("PartDesign::Pad", "Pad002")
body.addObject(pad3)
pad3.Profile = sketch10
pad3.Length = Q("0.25 in")

# Sketch on XY plane
sketch11 = doc.addObject("Sketcher::SketchObject", "Sketch010")
body.addObject(sketch11)
sketch11.AttachmentSupport = (doc.XY_Plane, [""])
sketch11.MapMode = "FlatFace"
sketch11.AttachmentOffset = App.Placement(Vector(0, 0, -3 * 25.4), App.Rotation())
add_polygon(sketch11, [(73, -66), (85, -66), (85, -142), (-4, -142), (-4, -56), (9, -56), (9, -41), (22, -41), (22, -28), (34, -28), (34, -53), (47, -53), (47, -15), (60, -15), (60, -28), (73, -28)])  # lines 0-15
add_polygon(sketch11, [(-27, -53), (-14, -53), (-14, -142), (-91, -142), (-91, -28), (-78, -28), (-78, -66), (-65, -66), (-65, -3), (-52, -3), (-52, -28), (-40, -28), (-40, -34), (-27, -34)])  # lines 16-29
sketch11.addConstraint(Sketcher.Constraint("Horizontal", 0))
sketch11.addConstraint(Sketcher.Constraint("Vertical", 1))
sketch11.addConstraint(Sketcher.Constraint("Horizontal", 2))
sketch11.addConstraint(Sketcher.Constraint("Vertical", 3))
sketch11.addConstraint(Sketcher.Constraint("Horizontal", 4))
sketch11.addConstraint(Sketcher.Constraint("Vertical", 5))
sketch11.addConstraint(Sketcher.Constraint("Horizontal", 6))
sketch11.addConstraint(Sketcher.Constraint("Vertical", 7))
sketch11.addConstraint(Sketcher.Constraint("Horizontal", 8))
sketch11.addConstraint(Sketcher.Constraint("Vertical", 9))
sketch11.addConstraint(Sketcher.Constraint("Horizontal", 10))
sketch11.addConstraint(Sketcher.Constraint("Vertical", 11))
sketch11.addConstraint(Sketcher.Constraint("Horizontal", 12))
sketch11.addConstraint(Sketcher.Constraint("Vertical", 13))
sketch11.addConstraint(Sketcher.Constraint("Horizontal", 14))
sketch11.addConstraint(Sketcher.Constraint("Vertical", 15))
sketch11.addConstraint(Sketcher.Constraint("Horizontal", 16))
sketch11.addConstraint(Sketcher.Constraint("Vertical", 17))
sketch11.addConstraint(Sketcher.Constraint("Horizontal", 18))
sketch11.addConstraint(Sketcher.Constraint("Vertical", 19))
sketch11.addConstraint(Sketcher.Constraint("Horizontal", 20))
sketch11.addConstraint(Sketcher.Constraint("Vertical", 21))
sketch11.addConstraint(Sketcher.Constraint("Horizontal", 22))
sketch11.addConstraint(Sketcher.Constraint("Vertical", 23))
sketch11.addConstraint(Sketcher.Constraint("Horizontal", 24))
sketch11.addConstraint(Sketcher.Constraint("Vertical", 25))
sketch11.addConstraint(Sketcher.Constraint("Horizontal", 26))
sketch11.addConstraint(Sketcher.Constraint("Vertical", 27))
sketch11.addConstraint(Sketcher.Constraint("Horizontal", 28))
sketch11.addConstraint(Sketcher.Constraint("Vertical", 29))
sketch11.addConstraint(Sketcher.Constraint("Horizontal", 8, 2, 13, 2))
sketch11.addConstraint(Sketcher.Constraint("Horizontal", 20, 2, 25, 2))
sketch11.addConstraint(Sketcher.Constraint("Equal", 0, 4))
sketch11.addConstraint(Sketcher.Constraint("Equal", 4, 6))
sketch11.addConstraint(Sketcher.Constraint("Equal", 6, 8))
sketch11.addConstraint(Sketcher.Constraint("Equal", 8, 10))
sketch11.addConstraint(Sketcher.Constraint("Equal", 10, 12))
sketch11.addConstraint(Sketcher.Constraint("Equal", 12, 14))
sketch11.addConstraint(Sketcher.Constraint("Equal", 14, 16))
sketch11.addConstraint(Sketcher.Constraint("Equal", 16, 20))
sketch11.addConstraint(Sketcher.Constraint("Equal", 20, 22))
sketch11.addConstraint(Sketcher.Constraint("Equal", 22, 24))
sketch11.addConstraint(Sketcher.Constraint("Equal", 24, 26))
sketch11.addConstraint(Sketcher.Constraint("Equal", 26, 28))
sketch11.addConstraint(Sketcher.Constraint("Equal", 18, 1))
sketch11.addConstraint(Sketcher.Constraint("Equal", 28, 7))
sketch11.addConstraint(Sketcher.Constraint("Equal", 7, 13))
sketch11.addConstraint(Sketcher.Constraint("Equal", 11, 15))
sketch11.addConstraint(Sketcher.Constraint("Equal", 2, 17))
sketch11.addConstraint(Sketcher.Constraint("Equal", 15, 21))
sketch11.addConstraint(Sketcher.Constraint("Equal", 9, 25))
sketch11.addConstraint(Sketcher.Constraint("DistanceX", 18, 2, 18, 1, Q("3 in")))
sketch11.addConstraint(Sketcher.Constraint("DistanceY", 9, 2, 9, 1, Q("1 in")))
sketch11.addConstraint(Sketcher.Constraint("DistanceY", 19, 1, 19, 2, Q("4.5 in")))
sketch11.addConstraint(Sketcher.Constraint("DistanceY", 3, 1, 3, 2, Q("86.729931 mm")))
sketch11.addConstraint(Sketcher.Constraint("DistanceY", 27, 2, 27, 1, Q("6.260437 mm")))
sketch11.addConstraint(Sketcher.Constraint("DistanceX", 16, 2, -1, 1, Q("14.343959 mm")))
sketch11.addConstraint(Sketcher.Constraint("DistanceY", 16, 2, -1, 1, Q("53.36426 mm")))
sketch11.addConstraint(Sketcher.Constraint("DistanceY", 3, 2, 28, 2, Q("21.364849 mm")))
sketch11.addConstraint(Sketcher.Constraint("DistanceX", -1, 1, 0, 2, Q("85.293148 mm")))
pad4 = doc.addObject("PartDesign::Pad", "Pad003")
body.addObject(pad4)
pad4.Profile = sketch11
pad4.Length = Q("0.25 in")

# Sketch on XZ plane
sketch12 = doc.addObject("Sketcher::SketchObject", "Sketch011")
body.addObject(sketch12)
sketch12.AttachmentSupport = (doc.XZ_Plane, [""])
sketch12.MapMode = "FlatFace"
sketch12.AttachmentOffset = App.Placement(Vector(0, 0, 6 * 25.4), App.Rotation())
add_polygon(sketch12, [(85.5, 64), (61.2, 64), (61.2, 76.7), (48.5, 76.7), (48.5, 64), (7.6, 64), (7.6, 76.7), (-5.1, 76.7), (-5.1, 64), (-26.7, 64), (-26.7, 76.7), (-39.4, 76.7), (-39.4, 64), (-102.5, 64), (-102.5, -63), (-89.4, -63), (-89.4, -75.7), (-76.7, -75.7), (-76.7, -63), (-52.7, -63), (-52.7, -75.7), (-40, -75.7), (-40, -63), (22.6, -63), (22.6, -75.7), (35.3, -75.7), (35.3, -63), (59.4, -63), (59.4, -75.7), (72.1, -75.7), (72.1, -63), (85.5, -63), (85.5, -76), (98.2, -76), (98.2, -63), (100.7, -63), (100.7, 64), (98.2, 64), (98.2, 76.4), (85.5, 76.4)])  # lines 0-39
sketch12.addConstraint(Sketcher.Constraint("Horizontal", 0))
sketch12.addConstraint(Sketcher.Constraint("Vertical", 1))
sketch12.addConstraint(Sketcher.Constraint("Horizontal", 2))
sketch12.addConstraint(Sketcher.Constraint("Vertical", 3))
sketch12.addConstraint(Sketcher.Constraint("Horizontal", 4))
sketch12.addConstraint(Sketcher.Constraint("Vertical", 5))
sketch12.addConstraint(Sketcher.Constraint("Horizontal", 6))
sketch12.addConstraint(Sketcher.Constraint("Vertical", 7))
sketch12.addConstraint(Sketcher.Constraint("Horizontal", 8))
sketch12.addConstraint(Sketcher.Constraint("Vertical", 9))
sketch12.addConstraint(Sketcher.Constraint("Horizontal", 10))
sketch12.addConstraint(Sketcher.Constraint("Vertical", 11))
sketch12.addConstraint(Sketcher.Constraint("Horizontal", 12))
sketch12.addConstraint(Sketcher.Constraint("Vertical", 13))
sketch12.addConstraint(Sketcher.Constraint("Horizontal", 14))
sketch12.addConstraint(Sketcher.Constraint("Vertical", 15))
sketch12.addConstraint(Sketcher.Constraint("Horizontal", 16))
sketch12.addConstraint(Sketcher.Constraint("Vertical", 17))
sketch12.addConstraint(Sketcher.Constraint("Horizontal", 18))
sketch12.addConstraint(Sketcher.Constraint("Vertical", 19))
sketch12.addConstraint(Sketcher.Constraint("Horizontal", 20))
sketch12.addConstraint(Sketcher.Constraint("Vertical", 21))
sketch12.addConstraint(Sketcher.Constraint("Horizontal", 22))
sketch12.addConstraint(Sketcher.Constraint("Vertical", 23))
sketch12.addConstraint(Sketcher.Constraint("Horizontal", 24))
sketch12.addConstraint(Sketcher.Constraint("Vertical", 25))
sketch12.addConstraint(Sketcher.Constraint("Horizontal", 26))
sketch12.addConstraint(Sketcher.Constraint("Vertical", 27))
sketch12.addConstraint(Sketcher.Constraint("Horizontal", 28))
sketch12.addConstraint(Sketcher.Constraint("Vertical", 29))
sketch12.addConstraint(Sketcher.Constraint("Horizontal", 30))
sketch12.addConstraint(Sketcher.Constraint("Vertical", 31))
sketch12.addConstraint(Sketcher.Constraint("Horizontal", 32))
sketch12.addConstraint(Sketcher.Constraint("Vertical", 33))
sketch12.addConstraint(Sketcher.Constraint("Horizontal", 34))
sketch12.addConstraint(Sketcher.Constraint("Vertical", 35))
sketch12.addConstraint(Sketcher.Constraint("Horizontal", 36))
sketch12.addConstraint(Sketcher.Constraint("Vertical", 37))
sketch12.addConstraint(Sketcher.Constraint("Horizontal", 38))
sketch12.addConstraint(Sketcher.Constraint("Vertical", 39))
sketch12.addConstraint(Sketcher.Constraint("Horizontal", 0, 2, 3, 2))
sketch12.addConstraint(Sketcher.Constraint("Horizontal", 2, 2, 5, 2))
sketch12.addConstraint(Sketcher.Constraint("Horizontal", 4, 2, 7, 2))
sketch12.addConstraint(Sketcher.Constraint("Horizontal", 6, 2, 9, 2))
sketch12.addConstraint(Sketcher.Constraint("Horizontal", 8, 2, 11, 2))
sketch12.addConstraint(Sketcher.Constraint("Horizontal", 14, 2, 17, 2))
sketch12.addConstraint(Sketcher.Constraint("Horizontal", 16, 2, 19, 2))
sketch12.addConstraint(Sketcher.Constraint("Horizontal", 18, 2, 21, 2))
sketch12.addConstraint(Sketcher.Constraint("Horizontal", 20, 2, 23, 2))
sketch12.addConstraint(Sketcher.Constraint("Horizontal", 22, 2, 25, 2))
sketch12.addConstraint(Sketcher.Constraint("Horizontal", 24, 2, 27, 2))
sketch12.addConstraint(Sketcher.Constraint("Horizontal", 26, 2, 29, 2))
sketch12.addConstraint(Sketcher.Constraint("Horizontal", 30, 2, 33, 2))
sketch12.addConstraint(Sketcher.Constraint("Horizontal", 12, 2, 35, 2))
sketch12.addConstraint(Sketcher.Constraint("Vertical", 33, 2, 36, 2))
sketch12.addConstraint(Sketcher.Constraint("Vertical", 31, 2, 38, 2))
sketch12.addConstraint(Sketcher.Constraint("Equal", 2, 6))
sketch12.addConstraint(Sketcher.Constraint("Equal", 6, 10))
sketch12.addConstraint(Sketcher.Constraint("Equal", 10, 16))
sketch12.addConstraint(Sketcher.Constraint("Equal", 16, 20))
sketch12.addConstraint(Sketcher.Constraint("Equal", 20, 24))
sketch12.addConstraint(Sketcher.Constraint("Equal", 24, 28))
sketch12.addConstraint(Sketcher.Constraint("Equal", 28, 32))
sketch12.addConstraint(Sketcher.Constraint("Equal", 38, 1))
sketch12.addConstraint(Sketcher.Constraint("Equal", 11, 15))
sketch12.addConstraint(Sketcher.Constraint("DistanceY", 13, 2, 13, 1, Q("5 in")))
sketch12.addConstraint(Sketcher.Constraint("DistanceX", 2, 2, 2, 1, Q("0.5 in")))
sketch12.addConstraint(Sketcher.Constraint("DistanceX", 0, 2, 0, 1, Q("24.253561 mm")))
sketch12.addConstraint(Sketcher.Constraint("DistanceX", 4, 2, 4, 1, Q("40.927732 mm")))
sketch12.addConstraint(Sketcher.Constraint("DistanceX", 14, 1, 14, 2, Q("13.027711 mm")))
sketch12.addConstraint(Sketcher.Constraint("DistanceX", 18, 1, 18, 2, Q("24.043559 mm")))
sketch12.addConstraint(Sketcher.Constraint("DistanceX", 30, 1, 30, 2, Q("13.40324 mm")))
sketch12.addConstraint(Sketcher.Constraint("DistanceX", 34, 1, 34, 2, Q("2.573091 mm")))
sketch12.addConstraint(Sketcher.Constraint("DistanceX", 21, 2, 26, 2, Q("99.3524 mm")))
sketch12.addConstraint(Sketcher.Constraint("DistanceX", 8, 2, 8, 1, Q("21.549642 mm")))
sketch12.addConstraint(Sketcher.Constraint("DistanceX", 22, 1, 22, 2, Q("62.559076 mm")))
sketch12.addConstraint(Sketcher.Constraint("DistanceY", 31, 2, 31, 1, Q("12.982268 mm")))
sketch12.addConstraint(Sketcher.Constraint("DistanceY", 37, 1, 37, 2, Q("12.417732 mm")))
sketch12.addConstraint(Sketcher.Constraint("DistanceX", -1, 1, 4, 2, Q("7.577321 mm")))
sketch12.addConstraint(Sketcher.Constraint("DistanceY", 31, 2, -1, 1, Q("75.959831 mm")))
pad5 = doc.addObject("PartDesign::Pad", "Pad004")
body.addObject(pad5)
pad5.Profile = sketch12
pad5.Length = Q("0.5 in")

doc.recompute()
